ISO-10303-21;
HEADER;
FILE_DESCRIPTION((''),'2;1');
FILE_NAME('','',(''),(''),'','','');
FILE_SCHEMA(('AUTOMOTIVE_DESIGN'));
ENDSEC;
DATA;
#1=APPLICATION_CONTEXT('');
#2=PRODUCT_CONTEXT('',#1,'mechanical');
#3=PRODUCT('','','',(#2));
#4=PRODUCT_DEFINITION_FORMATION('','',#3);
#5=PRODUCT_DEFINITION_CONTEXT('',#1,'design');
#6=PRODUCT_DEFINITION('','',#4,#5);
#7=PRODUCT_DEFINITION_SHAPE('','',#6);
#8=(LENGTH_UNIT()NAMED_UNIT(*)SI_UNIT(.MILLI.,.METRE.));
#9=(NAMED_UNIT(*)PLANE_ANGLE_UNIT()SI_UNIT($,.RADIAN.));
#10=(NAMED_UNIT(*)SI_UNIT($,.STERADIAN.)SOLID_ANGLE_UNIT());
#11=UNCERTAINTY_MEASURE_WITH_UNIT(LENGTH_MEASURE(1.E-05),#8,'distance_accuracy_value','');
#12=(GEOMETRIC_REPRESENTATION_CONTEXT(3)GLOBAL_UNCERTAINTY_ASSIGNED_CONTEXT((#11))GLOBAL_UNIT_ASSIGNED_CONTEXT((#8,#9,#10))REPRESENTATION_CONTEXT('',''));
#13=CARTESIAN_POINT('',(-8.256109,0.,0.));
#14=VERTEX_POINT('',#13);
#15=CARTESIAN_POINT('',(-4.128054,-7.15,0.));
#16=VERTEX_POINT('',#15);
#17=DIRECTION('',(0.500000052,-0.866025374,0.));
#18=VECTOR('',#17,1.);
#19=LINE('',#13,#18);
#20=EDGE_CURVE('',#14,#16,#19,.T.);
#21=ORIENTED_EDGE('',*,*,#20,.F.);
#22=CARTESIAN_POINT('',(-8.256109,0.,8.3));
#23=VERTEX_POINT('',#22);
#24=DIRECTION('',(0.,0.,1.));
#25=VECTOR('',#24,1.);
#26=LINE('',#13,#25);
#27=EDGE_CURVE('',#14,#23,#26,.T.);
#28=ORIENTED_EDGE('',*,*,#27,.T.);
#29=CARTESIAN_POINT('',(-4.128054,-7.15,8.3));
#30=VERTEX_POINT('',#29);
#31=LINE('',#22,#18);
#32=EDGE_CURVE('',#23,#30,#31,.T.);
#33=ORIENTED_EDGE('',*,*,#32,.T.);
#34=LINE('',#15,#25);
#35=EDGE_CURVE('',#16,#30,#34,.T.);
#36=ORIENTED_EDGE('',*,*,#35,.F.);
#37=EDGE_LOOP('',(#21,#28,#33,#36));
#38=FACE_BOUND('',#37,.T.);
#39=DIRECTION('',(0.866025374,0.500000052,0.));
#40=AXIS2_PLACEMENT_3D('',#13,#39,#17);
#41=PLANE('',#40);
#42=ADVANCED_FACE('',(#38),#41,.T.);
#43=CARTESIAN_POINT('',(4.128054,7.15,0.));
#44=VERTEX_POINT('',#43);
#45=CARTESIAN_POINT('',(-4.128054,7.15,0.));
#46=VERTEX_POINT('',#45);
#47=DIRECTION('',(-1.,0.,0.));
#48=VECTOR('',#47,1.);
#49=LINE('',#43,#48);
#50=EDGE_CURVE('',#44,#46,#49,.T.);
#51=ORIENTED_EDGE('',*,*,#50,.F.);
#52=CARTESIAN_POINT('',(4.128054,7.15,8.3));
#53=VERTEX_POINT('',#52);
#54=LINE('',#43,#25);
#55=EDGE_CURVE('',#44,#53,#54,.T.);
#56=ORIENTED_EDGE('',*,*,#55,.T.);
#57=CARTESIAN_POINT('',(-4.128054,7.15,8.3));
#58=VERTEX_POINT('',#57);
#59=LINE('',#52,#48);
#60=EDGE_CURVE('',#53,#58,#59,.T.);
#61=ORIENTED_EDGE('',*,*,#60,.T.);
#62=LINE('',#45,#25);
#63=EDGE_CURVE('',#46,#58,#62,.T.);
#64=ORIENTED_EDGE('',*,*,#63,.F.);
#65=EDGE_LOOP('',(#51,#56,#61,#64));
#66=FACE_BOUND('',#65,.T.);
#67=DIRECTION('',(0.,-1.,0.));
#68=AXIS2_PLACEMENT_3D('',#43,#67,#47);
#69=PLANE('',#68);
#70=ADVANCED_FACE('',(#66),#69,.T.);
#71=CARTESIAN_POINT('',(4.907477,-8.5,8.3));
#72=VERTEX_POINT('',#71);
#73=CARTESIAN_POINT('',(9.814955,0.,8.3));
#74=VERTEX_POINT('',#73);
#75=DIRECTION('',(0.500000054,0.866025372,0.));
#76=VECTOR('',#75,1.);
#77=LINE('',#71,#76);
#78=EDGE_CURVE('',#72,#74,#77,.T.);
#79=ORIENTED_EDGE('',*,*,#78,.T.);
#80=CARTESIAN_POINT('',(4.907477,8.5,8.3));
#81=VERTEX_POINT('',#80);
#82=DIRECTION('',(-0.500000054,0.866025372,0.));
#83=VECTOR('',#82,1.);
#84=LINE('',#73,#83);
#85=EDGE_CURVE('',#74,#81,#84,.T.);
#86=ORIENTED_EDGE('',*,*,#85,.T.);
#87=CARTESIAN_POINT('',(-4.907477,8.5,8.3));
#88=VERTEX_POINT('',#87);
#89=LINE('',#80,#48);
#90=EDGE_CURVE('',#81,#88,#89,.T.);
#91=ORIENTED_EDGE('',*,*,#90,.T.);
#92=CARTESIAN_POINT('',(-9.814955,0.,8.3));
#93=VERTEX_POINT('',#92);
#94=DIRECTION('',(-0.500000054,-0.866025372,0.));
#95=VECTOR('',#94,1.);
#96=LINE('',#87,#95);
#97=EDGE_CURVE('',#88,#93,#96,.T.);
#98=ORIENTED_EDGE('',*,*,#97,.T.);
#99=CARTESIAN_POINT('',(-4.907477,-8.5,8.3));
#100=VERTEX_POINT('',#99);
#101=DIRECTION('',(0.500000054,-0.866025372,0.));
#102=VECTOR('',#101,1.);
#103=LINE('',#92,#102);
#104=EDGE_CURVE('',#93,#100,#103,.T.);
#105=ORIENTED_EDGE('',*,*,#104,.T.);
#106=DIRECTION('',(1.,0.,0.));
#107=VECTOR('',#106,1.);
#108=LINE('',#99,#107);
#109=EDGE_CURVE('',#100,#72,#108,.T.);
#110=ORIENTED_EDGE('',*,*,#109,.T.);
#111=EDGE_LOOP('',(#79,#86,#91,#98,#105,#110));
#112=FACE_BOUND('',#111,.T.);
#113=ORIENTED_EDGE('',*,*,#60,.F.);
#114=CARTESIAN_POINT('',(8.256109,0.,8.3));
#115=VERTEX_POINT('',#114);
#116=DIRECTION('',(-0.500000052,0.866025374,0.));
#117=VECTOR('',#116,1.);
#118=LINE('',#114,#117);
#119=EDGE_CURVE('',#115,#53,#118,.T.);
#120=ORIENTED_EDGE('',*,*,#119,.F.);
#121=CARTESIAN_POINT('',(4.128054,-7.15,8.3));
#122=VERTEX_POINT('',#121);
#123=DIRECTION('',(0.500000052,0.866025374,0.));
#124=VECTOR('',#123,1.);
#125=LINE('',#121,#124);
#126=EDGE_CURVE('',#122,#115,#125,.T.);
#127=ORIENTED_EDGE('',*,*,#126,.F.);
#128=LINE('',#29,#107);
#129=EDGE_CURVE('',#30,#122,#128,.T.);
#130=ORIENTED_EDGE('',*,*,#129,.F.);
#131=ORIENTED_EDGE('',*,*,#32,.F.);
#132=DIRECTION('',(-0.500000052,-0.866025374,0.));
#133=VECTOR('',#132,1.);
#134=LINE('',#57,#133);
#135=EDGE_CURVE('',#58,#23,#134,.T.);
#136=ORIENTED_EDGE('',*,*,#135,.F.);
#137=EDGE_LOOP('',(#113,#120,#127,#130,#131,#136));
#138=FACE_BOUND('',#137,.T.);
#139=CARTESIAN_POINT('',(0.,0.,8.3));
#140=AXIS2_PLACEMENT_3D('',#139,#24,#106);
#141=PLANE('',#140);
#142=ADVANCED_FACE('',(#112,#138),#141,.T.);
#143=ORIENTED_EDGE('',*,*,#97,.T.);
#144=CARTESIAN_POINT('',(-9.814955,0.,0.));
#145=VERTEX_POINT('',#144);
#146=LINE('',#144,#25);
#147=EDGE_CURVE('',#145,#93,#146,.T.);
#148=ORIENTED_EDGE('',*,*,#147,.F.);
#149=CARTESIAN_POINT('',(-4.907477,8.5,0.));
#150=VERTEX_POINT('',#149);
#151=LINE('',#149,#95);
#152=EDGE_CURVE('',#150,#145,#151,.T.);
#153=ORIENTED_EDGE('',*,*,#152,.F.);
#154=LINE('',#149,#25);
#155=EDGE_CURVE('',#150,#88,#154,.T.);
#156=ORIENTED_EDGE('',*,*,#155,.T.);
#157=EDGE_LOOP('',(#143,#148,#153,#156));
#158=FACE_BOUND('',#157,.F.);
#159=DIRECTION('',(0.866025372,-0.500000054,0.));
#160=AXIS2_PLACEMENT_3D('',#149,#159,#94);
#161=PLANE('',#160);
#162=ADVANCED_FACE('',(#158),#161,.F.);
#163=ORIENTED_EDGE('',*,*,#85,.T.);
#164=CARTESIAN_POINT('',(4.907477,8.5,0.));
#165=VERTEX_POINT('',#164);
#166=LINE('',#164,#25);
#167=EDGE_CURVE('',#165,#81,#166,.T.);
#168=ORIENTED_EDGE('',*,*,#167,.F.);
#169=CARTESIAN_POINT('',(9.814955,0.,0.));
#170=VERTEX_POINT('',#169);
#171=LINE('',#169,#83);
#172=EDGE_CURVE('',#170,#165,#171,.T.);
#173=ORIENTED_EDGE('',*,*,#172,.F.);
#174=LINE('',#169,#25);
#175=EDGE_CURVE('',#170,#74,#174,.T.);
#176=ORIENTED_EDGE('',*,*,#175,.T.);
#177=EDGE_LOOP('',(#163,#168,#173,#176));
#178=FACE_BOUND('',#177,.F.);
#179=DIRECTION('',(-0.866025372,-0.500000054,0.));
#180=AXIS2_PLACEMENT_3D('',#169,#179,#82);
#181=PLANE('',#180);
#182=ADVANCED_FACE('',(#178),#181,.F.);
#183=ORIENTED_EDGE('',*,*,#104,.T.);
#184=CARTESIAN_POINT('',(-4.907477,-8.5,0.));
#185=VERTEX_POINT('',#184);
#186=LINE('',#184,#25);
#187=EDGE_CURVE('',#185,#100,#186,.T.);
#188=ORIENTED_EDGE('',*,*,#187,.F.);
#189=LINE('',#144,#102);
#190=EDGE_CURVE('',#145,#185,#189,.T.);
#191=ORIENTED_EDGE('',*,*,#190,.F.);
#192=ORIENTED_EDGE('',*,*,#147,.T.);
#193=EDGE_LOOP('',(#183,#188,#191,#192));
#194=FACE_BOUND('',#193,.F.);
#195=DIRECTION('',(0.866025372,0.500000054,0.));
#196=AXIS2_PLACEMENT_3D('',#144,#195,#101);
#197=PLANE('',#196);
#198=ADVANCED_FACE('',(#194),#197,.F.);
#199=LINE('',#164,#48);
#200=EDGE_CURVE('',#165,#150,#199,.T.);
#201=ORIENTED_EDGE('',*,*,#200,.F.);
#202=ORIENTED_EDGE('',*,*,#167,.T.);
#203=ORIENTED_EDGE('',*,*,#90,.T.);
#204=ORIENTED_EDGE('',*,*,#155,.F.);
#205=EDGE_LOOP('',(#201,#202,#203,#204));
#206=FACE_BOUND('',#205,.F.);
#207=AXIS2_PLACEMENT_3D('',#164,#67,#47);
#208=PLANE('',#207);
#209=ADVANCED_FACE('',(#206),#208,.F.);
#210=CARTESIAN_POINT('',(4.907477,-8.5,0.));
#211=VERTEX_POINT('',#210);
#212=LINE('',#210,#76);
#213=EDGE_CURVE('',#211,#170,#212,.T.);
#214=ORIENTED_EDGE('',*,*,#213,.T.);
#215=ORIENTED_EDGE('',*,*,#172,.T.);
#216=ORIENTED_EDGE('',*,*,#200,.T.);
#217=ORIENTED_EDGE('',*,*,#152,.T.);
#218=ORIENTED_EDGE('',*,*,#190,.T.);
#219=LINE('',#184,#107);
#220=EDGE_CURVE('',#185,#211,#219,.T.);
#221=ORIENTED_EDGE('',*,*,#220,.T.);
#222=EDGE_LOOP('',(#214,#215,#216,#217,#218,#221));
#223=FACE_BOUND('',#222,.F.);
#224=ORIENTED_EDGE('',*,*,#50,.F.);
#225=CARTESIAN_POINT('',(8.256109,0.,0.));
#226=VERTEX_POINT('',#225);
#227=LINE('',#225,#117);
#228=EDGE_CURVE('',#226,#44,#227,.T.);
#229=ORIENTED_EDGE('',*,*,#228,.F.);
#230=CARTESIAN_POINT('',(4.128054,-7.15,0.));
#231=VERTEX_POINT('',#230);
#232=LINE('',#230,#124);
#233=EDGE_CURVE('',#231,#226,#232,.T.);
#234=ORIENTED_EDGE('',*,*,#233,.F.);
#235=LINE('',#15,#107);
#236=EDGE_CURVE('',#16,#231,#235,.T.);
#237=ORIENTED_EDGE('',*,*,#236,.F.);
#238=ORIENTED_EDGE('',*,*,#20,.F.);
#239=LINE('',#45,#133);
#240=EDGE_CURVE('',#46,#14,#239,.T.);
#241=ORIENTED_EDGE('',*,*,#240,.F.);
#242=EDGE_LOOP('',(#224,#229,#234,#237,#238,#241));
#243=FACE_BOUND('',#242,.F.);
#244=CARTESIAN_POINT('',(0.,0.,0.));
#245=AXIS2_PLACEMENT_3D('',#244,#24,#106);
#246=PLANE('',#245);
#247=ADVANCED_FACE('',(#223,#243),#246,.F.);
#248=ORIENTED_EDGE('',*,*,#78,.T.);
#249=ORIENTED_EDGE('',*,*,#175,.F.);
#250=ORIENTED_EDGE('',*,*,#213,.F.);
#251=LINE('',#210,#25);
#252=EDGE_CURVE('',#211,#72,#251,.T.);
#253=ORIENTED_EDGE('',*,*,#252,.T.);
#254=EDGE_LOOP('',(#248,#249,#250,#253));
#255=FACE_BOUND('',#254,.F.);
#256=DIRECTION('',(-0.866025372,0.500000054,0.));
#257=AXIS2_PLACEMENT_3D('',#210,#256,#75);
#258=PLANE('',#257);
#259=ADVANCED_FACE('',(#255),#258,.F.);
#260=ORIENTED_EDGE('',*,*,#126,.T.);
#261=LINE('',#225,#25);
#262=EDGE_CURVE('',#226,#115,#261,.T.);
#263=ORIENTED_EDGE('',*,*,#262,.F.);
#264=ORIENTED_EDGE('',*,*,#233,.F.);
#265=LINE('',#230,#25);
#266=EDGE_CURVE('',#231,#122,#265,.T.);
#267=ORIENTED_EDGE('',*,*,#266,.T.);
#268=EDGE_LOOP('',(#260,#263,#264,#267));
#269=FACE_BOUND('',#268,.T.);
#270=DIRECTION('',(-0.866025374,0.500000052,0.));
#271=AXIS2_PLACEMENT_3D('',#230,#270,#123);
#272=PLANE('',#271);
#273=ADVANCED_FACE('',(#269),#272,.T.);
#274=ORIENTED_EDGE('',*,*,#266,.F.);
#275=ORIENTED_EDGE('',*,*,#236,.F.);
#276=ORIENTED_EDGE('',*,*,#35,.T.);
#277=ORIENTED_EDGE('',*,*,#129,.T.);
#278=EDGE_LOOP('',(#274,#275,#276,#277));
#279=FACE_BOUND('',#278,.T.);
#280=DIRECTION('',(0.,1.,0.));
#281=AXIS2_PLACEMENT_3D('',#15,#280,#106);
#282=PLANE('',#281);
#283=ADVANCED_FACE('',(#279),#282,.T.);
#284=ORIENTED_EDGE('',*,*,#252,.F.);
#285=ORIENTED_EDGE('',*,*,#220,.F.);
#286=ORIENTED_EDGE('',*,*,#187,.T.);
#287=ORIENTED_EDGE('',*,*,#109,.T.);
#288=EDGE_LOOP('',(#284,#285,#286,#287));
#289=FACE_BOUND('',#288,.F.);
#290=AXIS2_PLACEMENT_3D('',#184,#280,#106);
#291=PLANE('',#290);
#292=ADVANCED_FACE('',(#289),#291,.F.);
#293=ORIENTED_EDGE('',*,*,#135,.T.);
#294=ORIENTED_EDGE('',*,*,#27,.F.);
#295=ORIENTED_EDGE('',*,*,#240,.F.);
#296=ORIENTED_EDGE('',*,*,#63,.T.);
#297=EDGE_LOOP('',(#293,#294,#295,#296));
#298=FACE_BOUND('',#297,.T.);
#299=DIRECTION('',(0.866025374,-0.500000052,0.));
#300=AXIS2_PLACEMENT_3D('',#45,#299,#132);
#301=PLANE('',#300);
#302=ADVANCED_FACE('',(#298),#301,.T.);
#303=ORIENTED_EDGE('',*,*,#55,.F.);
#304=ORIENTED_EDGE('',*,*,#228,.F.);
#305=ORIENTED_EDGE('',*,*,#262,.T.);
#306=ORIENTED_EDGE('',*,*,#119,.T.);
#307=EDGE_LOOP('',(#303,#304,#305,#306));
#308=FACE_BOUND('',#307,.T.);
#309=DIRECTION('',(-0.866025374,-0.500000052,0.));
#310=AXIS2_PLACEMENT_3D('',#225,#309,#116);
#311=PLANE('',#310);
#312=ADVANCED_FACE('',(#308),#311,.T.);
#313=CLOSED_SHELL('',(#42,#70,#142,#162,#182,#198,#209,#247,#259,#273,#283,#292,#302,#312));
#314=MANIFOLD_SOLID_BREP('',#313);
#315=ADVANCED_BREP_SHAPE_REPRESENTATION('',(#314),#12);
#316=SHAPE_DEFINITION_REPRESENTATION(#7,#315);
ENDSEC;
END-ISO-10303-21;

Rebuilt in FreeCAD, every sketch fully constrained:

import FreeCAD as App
import Part
import Sketcher

V = App.Vector
Q = App.Units.Quantity

doc = App.newDocument("Part")
params = doc.addObject("Spreadsheet::Sheet", "Params")
for row, (alias, value) in enumerate([
    ("pad1_length", "8.3 mm"),
], start=1):
    params.set(f"A{row}", alias)
    params.set(f"B{row}", "=" + value)
    params.setAlias(f"B{row}", alias)

body = doc.addObject("PartDesign::Body", "Body")

# Sketch on XY plane
sketch1 = body.newObject("Sketcher::SketchObject", "Sketch")
sketch1.AttachmentSupport = (doc.getObject("XY_Plane"), [""])
sketch1.MapMode = "FlatFace"
sketch1.addGeometry([
    Part.LineSegment(V(-5, 8, 0), V(-10, 0, 0)),  # 0
    Part.LineSegment(V(-10, 0, 0), V(-5, -8, 0)),  # 1
    Part.LineSegment(V(-5, -8, 0), V(5, -8, 0)),  # 2
    Part.LineSegment(V(5, -8, 0), V(10, 0, 0)),  # 3
    Part.LineSegment(V(10, 0, 0), V(5, 8, 0)),  # 4
    Part.LineSegment(V(5, 8, 0), V(-5, 8, 0)),  # 5
    Part.LineSegment(V(4, -7, 0), V(-4, -7, 0)),  # 6
    Part.LineSegment(V(-4, -7, 0), V(-8, 0, 0)),  # 7
    Part.LineSegment(V(-8, 0, 0), V(-4, 7, 0)),  # 8
    Part.LineSegment(V(-4, 7, 0), V(4, 7, 0)),  # 9
    Part.LineSegment(V(4, 7, 0), V(8, 0, 0)),  # 10
    Part.LineSegment(V(8, 0, 0), V(4, -7, 0)),  # 11
], False)
sketch1.addConstraint([
    Sketcher.Constraint("Coincident", 0, 2, 1, 1),
    Sketcher.Constraint("Coincident", 1, 2, 2, 1),
    Sketcher.Constraint("Coincident", 2, 2, 3, 1),
    Sketcher.Constraint("Coincident", 3, 2, 4, 1),
    Sketcher.Constraint("Coincident", 4, 2, 5, 1),
    Sketcher.Constraint("Coincident", 5, 2, 0, 1),
    Sketcher.Constraint("Coincident", 6, 2, 7, 1),
    Sketcher.Constraint("Coincident", 7, 2, 8, 1),
    Sketcher.Constraint("Coincident", 8, 2, 9, 1),
    Sketcher.Constraint("Coincident", 9, 2, 10, 1),
    Sketcher.Constraint("Coincident", 10, 2, 11, 1),
    Sketcher.Constraint("Coincident", 11, 2, 6, 1),
    Sketcher.Constraint("Horizontal", 2),
    Sketcher.Constraint("Horizontal", 5),
    Sketcher.Constraint("Horizontal", 6),
    Sketcher.Constraint("Horizontal", 9),
    Sketcher.Constraint("Symmetric", 0, 2, 3, 2, -1, 1),
    Sketcher.Constraint("Symmetric", 1, 2, 4, 2, -1, 1),
    Sketcher.Constraint("Symmetric", 6, 2, 9, 2, -1, 1),
    Sketcher.Constraint("Symmetric", 7, 2, 10, 2, -1, 1),
    Sketcher.Constraint("PointOnObject", 0, 2, -1),
    Sketcher.Constraint("PointOnObject", 7, 2, -1),
    Sketcher.Constraint("Parallel", 0, 3),
    Sketcher.Constraint("Parallel", 4, 7),
    Sketcher.Constraint("Parallel", 3, 8),
    Sketcher.Constraint("Parallel", 8, 11),
    Sketcher.Constraint("Vertical", 2, 2, 4, 2),
    Sketcher.Constraint("Angle", 0, Q("-120.000004 deg")),
    Sketcher.Constraint("DistanceY", 2, 2, 4, 2, Q("17 mm")),
    Sketcher.Constraint("DistanceY", 6, 2, 8, 2, Q("14.3 mm")),
    Sketcher.Constraint("DistanceX", 0, 2, 6, 2, Q("5.686901 mm")),
    Sketcher.Constraint("DistanceX", 2, 1, 2, 2, Q("9.814954 mm")),
])
pad1 = body.newObject("PartDesign::Pad", "Pad")
pad1.Profile = sketch1
pad1.setExpression("Length", "Params.pad1_length")

doc.recompute()
